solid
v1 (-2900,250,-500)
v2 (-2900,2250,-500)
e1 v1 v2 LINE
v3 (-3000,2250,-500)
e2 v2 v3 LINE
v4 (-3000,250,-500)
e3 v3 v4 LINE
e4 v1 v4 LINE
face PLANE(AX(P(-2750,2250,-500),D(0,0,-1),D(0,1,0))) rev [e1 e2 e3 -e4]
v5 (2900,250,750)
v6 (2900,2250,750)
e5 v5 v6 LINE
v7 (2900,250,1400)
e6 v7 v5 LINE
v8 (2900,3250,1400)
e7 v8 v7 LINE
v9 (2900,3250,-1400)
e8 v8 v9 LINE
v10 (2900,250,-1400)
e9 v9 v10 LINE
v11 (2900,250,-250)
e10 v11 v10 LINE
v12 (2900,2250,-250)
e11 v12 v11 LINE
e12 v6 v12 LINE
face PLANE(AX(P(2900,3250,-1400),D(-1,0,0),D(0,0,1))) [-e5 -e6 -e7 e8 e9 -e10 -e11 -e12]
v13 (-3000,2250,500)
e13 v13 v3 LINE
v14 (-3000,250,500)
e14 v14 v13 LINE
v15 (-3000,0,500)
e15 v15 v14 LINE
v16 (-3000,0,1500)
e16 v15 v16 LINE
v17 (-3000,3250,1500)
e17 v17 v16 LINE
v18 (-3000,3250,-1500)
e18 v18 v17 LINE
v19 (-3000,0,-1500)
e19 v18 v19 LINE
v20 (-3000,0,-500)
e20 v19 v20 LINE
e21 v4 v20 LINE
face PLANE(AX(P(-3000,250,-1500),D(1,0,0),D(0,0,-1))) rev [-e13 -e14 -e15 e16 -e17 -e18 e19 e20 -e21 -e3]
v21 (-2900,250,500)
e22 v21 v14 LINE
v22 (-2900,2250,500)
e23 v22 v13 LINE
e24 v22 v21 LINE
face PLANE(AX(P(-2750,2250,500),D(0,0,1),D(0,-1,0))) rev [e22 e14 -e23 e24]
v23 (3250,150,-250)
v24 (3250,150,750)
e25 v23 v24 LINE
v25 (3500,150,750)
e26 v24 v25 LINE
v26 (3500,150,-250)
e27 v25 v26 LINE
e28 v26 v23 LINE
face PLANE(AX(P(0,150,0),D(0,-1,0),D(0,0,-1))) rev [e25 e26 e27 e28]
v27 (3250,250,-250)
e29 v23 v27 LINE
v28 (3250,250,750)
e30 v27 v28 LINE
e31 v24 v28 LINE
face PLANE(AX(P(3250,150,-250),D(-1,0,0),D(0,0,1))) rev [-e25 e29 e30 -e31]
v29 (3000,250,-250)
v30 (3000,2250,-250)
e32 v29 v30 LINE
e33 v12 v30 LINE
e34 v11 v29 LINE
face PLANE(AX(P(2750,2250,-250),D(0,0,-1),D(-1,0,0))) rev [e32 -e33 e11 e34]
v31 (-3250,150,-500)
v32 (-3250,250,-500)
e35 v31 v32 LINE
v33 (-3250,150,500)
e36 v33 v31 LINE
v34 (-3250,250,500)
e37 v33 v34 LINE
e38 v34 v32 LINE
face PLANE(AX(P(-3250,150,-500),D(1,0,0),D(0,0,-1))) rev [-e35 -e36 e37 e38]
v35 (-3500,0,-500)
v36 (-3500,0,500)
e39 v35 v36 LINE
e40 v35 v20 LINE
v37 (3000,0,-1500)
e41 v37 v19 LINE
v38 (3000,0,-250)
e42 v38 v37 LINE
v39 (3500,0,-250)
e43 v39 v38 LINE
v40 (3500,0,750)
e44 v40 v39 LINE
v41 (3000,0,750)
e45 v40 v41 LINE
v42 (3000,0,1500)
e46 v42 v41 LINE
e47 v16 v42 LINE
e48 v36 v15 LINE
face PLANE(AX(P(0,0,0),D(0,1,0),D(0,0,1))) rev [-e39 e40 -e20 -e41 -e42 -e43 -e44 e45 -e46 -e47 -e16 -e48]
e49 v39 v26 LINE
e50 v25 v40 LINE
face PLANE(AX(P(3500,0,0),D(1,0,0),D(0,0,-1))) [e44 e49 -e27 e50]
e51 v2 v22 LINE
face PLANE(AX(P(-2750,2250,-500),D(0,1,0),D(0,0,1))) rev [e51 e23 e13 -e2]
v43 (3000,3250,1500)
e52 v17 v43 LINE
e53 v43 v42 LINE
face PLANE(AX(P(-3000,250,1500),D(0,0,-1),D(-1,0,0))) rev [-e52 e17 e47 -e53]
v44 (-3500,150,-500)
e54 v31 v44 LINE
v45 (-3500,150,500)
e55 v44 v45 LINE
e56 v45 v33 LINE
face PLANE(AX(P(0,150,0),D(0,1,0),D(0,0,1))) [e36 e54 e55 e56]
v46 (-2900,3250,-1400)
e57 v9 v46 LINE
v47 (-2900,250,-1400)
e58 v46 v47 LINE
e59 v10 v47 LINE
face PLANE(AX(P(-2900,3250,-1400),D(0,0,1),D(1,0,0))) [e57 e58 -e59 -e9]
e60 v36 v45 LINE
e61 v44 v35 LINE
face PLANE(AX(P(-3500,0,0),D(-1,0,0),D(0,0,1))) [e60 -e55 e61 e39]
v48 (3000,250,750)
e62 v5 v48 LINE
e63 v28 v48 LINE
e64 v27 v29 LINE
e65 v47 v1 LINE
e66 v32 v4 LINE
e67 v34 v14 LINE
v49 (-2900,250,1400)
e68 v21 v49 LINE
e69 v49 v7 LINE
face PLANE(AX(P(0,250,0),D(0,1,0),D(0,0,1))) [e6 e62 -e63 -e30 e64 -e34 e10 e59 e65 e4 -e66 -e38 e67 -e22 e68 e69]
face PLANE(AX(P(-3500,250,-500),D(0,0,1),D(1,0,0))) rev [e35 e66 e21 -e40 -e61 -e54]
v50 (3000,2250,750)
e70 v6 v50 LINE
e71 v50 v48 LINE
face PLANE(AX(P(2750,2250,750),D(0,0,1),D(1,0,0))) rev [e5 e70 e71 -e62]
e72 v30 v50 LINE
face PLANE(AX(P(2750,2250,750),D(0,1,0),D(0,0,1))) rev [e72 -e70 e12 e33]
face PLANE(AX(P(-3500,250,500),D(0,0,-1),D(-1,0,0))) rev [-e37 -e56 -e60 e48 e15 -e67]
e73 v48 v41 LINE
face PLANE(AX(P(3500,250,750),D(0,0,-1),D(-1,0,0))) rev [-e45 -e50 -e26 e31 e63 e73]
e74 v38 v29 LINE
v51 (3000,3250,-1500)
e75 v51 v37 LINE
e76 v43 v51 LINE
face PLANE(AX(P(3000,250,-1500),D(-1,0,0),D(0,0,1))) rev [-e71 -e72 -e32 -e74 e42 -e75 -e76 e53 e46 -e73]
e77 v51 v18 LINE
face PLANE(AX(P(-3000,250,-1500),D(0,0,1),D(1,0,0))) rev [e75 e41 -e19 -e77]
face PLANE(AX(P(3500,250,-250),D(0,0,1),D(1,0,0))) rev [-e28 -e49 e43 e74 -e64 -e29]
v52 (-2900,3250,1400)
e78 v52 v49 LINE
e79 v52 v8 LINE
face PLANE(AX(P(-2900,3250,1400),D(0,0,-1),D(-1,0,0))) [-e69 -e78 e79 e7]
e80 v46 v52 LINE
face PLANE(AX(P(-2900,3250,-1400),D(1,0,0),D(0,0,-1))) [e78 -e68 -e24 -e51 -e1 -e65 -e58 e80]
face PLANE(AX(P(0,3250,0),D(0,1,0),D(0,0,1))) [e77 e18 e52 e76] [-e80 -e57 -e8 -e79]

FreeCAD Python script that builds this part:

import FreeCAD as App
import Part
import Sketcher

V = App.Vector

doc = App.newDocument("Part")
params = doc.addObject("Spreadsheet::Sheet", "Params")
for row, (alias, value) in enumerate([
    ("sketch1_width", "6000 mm"),
    ("sketch1_height", "3000 mm"),
    ("pad1_length", "250 mm"),
    ("sketch2_width", "6000 mm"),
    ("sketch2_width2", "5800 mm"),
    ("sketch2_height", "3000 mm"),
    ("sketch2_height2", "2800 mm"),
    ("pad2_length", "3000 mm"),
    ("sketch3_width", "2000 mm"),
    ("sketch3_height", "1000 mm"),
    ("pocket1_length", "250 mm"),
    ("sketch4_width", "2000 mm"),
    ("sketch4_height", "1000 mm"),
    ("pocket2_length", "250 mm"),
    ("sketch5_width", "250 mm"),
    ("sketch5_height", "1000 mm"),
    ("pad3_length", "500 mm"),
    ("sketch6_width", "250 mm"),
    ("sketch6_height", "1000 mm"),
    ("pad4_length", "500 mm"),
    ("sketch7_width", "250 mm"),
    ("sketch7_height", "1000 mm"),
    ("pocket3_length", "100 mm"),
    ("sketch8_width", "250 mm"),
    ("sketch8_height", "1000 mm"),
    ("pocket4_length", "100 mm"),
], start=1):
    params.set(f"A{row}", alias)
    params.set(f"B{row}", "=" + value)
    params.setAlias(f"B{row}", alias)

body = doc.addObject("PartDesign::Body", "Body")

sketch1 = doc.addObject("Sketcher::SketchObject", "Sketch")
body.addObject(sketch1)
sketch1.AttachmentSupport = (doc.XZ_Plane, [""])
sketch1.MapMode = "FlatFace"
sketch1.addGeometry(Part.LineSegment(V(-3000, -1500, 0), V(-3000, 1500, 0)), False)
sketch1.addGeometry(Part.LineSegment(V(-3000, 1500, 0), V(3000, 1500, 0)), False)
sketch1.addGeometry(Part.LineSegment(V(3000, 1500, 0), V(3000, -1500, 0)), False)
sketch1.addGeometry(Part.LineSegment(V(3000, -1500, 0), V(-3000, -1500, 0)), False)
sketch1.addConstraint(Sketcher.Constraint("Coincident", 0, 2, 1, 1))
sketch1.addConstraint(Sketcher.Constraint("Coincident", 1, 2, 2, 1))
sketch1.addConstraint(Sketcher.Constraint("Coincident", 2, 2, 3, 1))
sketch1.addConstraint(Sketcher.Constraint("Coincident", 3, 2, 0, 1))
sketch1.addConstraint(Sketcher.Constraint("Vertical", 0))
sketch1.addConstraint(Sketcher.Constraint("Horizontal", 1))
sketch1.addConstraint(Sketcher.Constraint("Vertical", 2))
sketch1.addConstraint(Sketcher.Constraint("Horizontal", 3))
sketch1.addConstraint(Sketcher.Constraint("Symmetric", 0, 2, 2, 2, -1, 1))
sketch1.addConstraint(Sketcher.Constraint("DistanceX", 1, 1, 1, 2, 6000.0))
sketch1.addConstraint(Sketcher.Constraint("DistanceY", 0, 1, 0, 2, 3000.0))
sketch1.setExpression("Constraints[9]", "Params.sketch1_width")
sketch1.setExpression("Constraints[10]", "Params.sketch1_height")
pad1 = doc.addObject("PartDesign::Pad", "Pad")
body.addObject(pad1)
pad1.Profile = sketch1
pad1.setExpression("Length", "Params.pad1_length")
pad1.Reversed = True

sketch2 = doc.addObject("Sketcher::SketchObject", "Sketch001")
body.addObject(sketch2)
sketch2.AttachmentSupport = (doc.XZ_Plane, [""])
sketch2.MapMode = "FlatFace"
sketch2.AttachmentOffset = App.Placement(V(0, 0, -250), App.Rotation())
sketch2.addGeometry(Part.LineSegment(V(-3000, -1500, 0), V(-3000, 1500, 0)), False)
sketch2.addGeometry(Part.LineSegment(V(-3000, 1500, 0), V(3000, 1500, 0)), False)
sketch2.addGeometry(Part.LineSegment(V(3000, 1500, 0), V(3000, -1500, 0)), False)
sketch2.addGeometry(Part.LineSegment(V(3000, -1500, 0), V(-3000, -1500, 0)), False)
sketch2.addGeometry(Part.LineSegment(V(2900, 1400, 0), V(-2900, 1400, 0)), False)
sketch2.addGeometry(Part.LineSegment(V(-2900, 1400, 0), V(-2900, -1400, 0)), False)
sketch2.addGeometry(Part.LineSegment(V(-2900, -1400, 0), V(2900, -1400, 0)), False)
sketch2.addGeometry(Part.LineSegment(V(2900, -1400, 0), V(2900, 1400, 0)), False)
sketch2.addConstraint(Sketcher.Constraint("Coincident", 0, 2, 1, 1))
sketch2.addConstraint(Sketcher.Constraint("Coincident", 1, 2, 2, 1))
sketch2.addConstraint(Sketcher.Constraint("Coincident", 2, 2, 3, 1))
sketch2.addConstraint(Sketcher.Constraint("Coincident", 3, 2, 0, 1))
sketch2.addConstraint(Sketcher.Constraint("Coincident", 4, 2, 5, 1))
sketch2.addConstraint(Sketcher.Constraint("Coincident", 5, 2, 6, 1))
sketch2.addConstraint(Sketcher.Constraint("Coincident", 6, 2, 7, 1))
sketch2.addConstraint(Sketcher.Constraint("Coincident", 7, 2, 4, 1))
sketch2.addConstraint(Sketcher.Constraint("Vertical", 0))
sketch2.addConstraint(Sketcher.Constraint("Horizontal", 1))
sketch2.addConstraint(Sketcher.Constraint("Vertical", 2))
sketch2.addConstraint(Sketcher.Constraint("Horizontal", 3))
sketch2.addConstraint(Sketcher.Constraint("Horizontal", 4))
sketch2.addConstraint(Sketcher.Constraint("Vertical", 5))
sketch2.addConstraint(Sketcher.Constraint("Horizontal", 6))
sketch2.addConstraint(Sketcher.Constraint("Vertical", 7))
sketch2.addConstraint(Sketcher.Constraint("Symmetric", 0, 2, 2, 2, -1, 1))
sketch2.addConstraint(Sketcher.Constraint("Symmetric", 4, 2, 6, 2, -1, 1))
sketch2.addConstraint(Sketcher.Constraint("DistanceX", 1, 1, 1, 2, 6000.0))
sketch2.addConstraint(Sketcher.Constraint("DistanceX", 4, 2, 4, 1, 5800.0))
sketch2.addConstraint(Sketcher.Constraint("DistanceY", 0, 1, 0, 2, 3000.0))
sketch2.addConstraint(Sketcher.Constraint("DistanceY", 5, 2, 5, 1, 2800.0))
sketch2.setExpression("Constraints[18]", "Params.sketch2_width")
sketch2.setExpression("Constraints[19]", "Params.sketch2_width2")
sketch2.setExpression("Constraints[20]", "Params.sketch2_height")
sketch2.setExpression("Constraints[21]", "Params.sketch2_height2")
pad2 = doc.addObject("PartDesign::Pad", "Pad001")
body.addObject(pad2)
pad2.Profile = sketch2
pad2.setExpression("Length", "Params.pad2_length")
pad2.Reversed = True

sketch3 = doc.addObject("Sketcher::SketchObject", "Sketch002")
body.addObject(sketch3)
sketch3.AttachmentSupport = (doc.YZ_Plane, [""])
sketch3.MapMode = "FlatFace"
sketch3.AttachmentOffset = App.Placement(V(0, 0, -3000), App.Rotation())
sketch3.addGeometry(Part.LineSegment(V(2250, -500, 0), V(250, -500, 0)), False)
sketch3.addGeometry(Part.LineSegment(V(250, -500, 0), V(250, 500, 0)), False)
sketch3.addGeometry(Part.LineSegment(V(250, 500, 0), V(2250, 500, 0)), False)
sketch3.addGeometry(Part.LineSegment(V(2250, 500, 0), V(2250, -500, 0)), False)
sketch3.addConstraint(Sketcher.Constraint("Coincident", 0, 2, 1, 1))
sketch3.addConstraint(Sketcher.Constraint("Coincident", 1, 2, 2, 1))
sketch3.addConstraint(Sketcher.Constraint("Coincident", 2, 2, 3, 1))
sketch3.addConstraint(Sketcher.Constraint("Coincident", 3, 2, 0, 1))
sketch3.addConstraint(Sketcher.Constraint("Horizontal", 0))
sketch3.addConstraint(Sketcher.Constraint("Vertical", 1))
sketch3.addConstraint(Sketcher.Constraint("Horizontal", 2))
sketch3.addConstraint(Sketcher.Constraint("Vertical", 3))
sketch3.addConstraint(Sketcher.Constraint("DistanceX", 0, 2, 0, 1, 2000.0))
sketch3.addConstraint(Sketcher.Constraint("DistanceY", 1, 1, 1, 2, 1000.0))
sketch3.addConstraint(Sketcher.Constraint("DistanceX", -1, 1, 0, 2, 250.0))
sketch3.addConstraint(Sketcher.Constraint("DistanceY", 0, 2, -1, 1, 500.0))
sketch3.setExpression("Constraints[8]", "Params.sketch3_width")
sketch3.setExpression("Constraints[9]", "Params.sketch3_height")
pocket1 = doc.addObject("PartDesign::Pocket", "Pocket")
body.addObject(pocket1)
pocket1.Profile = sketch3
pocket1.setExpression("Length", "Params.pocket1_length")
pocket1.Reversed = True

sketch4 = doc.addObject("Sketcher::SketchObject", "Sketch003")
body.addObject(sketch4)
sketch4.AttachmentSupport = (doc.YZ_Plane, [""])
sketch4.MapMode = "FlatFace"
sketch4.AttachmentOffset = App.Placement(V(0, 0, 3000), App.Rotation())
sketch4.addGeometry(Part.LineSegment(V(2250, 750, 0), V(250, 750, 0)), False)
sketch4.addGeometry(Part.LineSegment(V(250, 750, 0), V(250, -250, 0)), False)
sketch4.addGeometry(Part.LineSegment(V(250, -250, 0), V(2250, -250, 0)), False)
sketch4.addGeometry(Part.LineSegment(V(2250, -250, 0), V(2250, 750, 0)), False)
sketch4.addConstraint(Sketcher.Constraint("Coincident", 0, 2, 1, 1))
sketch4.addConstraint(Sketcher.Constraint("Coincident", 1, 2, 2, 1))
sketch4.addConstraint(Sketcher.Constraint("Coincident", 2, 2, 3, 1))
sketch4.addConstraint(Sketcher.Constraint("Coincident", 3, 2, 0, 1))
sketch4.addConstraint(Sketcher.Constraint("Horizontal", 0))
sketch4.addConstraint(Sketcher.Constraint("Vertical", 1))
sketch4.addConstraint(Sketcher.Constraint("Horizontal", 2))
sketch4.addConstraint(Sketcher.Constraint("Vertical", 3))
sketch4.addConstraint(Sketcher.Constraint("DistanceX", 0, 2, 0, 1, 2000.0))
sketch4.addConstraint(Sketcher.Constraint("DistanceY", 1, 2, 1, 1, 1000.0))
sketch4.addConstraint(Sketcher.Constraint("DistanceX", -1, 1, 0, 2, 250.0))
sketch4.addConstraint(Sketcher.Constraint("DistanceY", -1, 1, 0, 2, 750.0))
sketch4.setExpression("Constraints[8]", "Params.sketch4_width")
sketch4.setExpression("Constraints[9]", "Params.sketch4_height")
pocket2 = doc.addObject("PartDesign::Pocket", "Pocket001")
body.addObject(pocket2)
pocket2.Profile = sketch4
pocket2.setExpression("Length", "Params.pocket2_length")

sketch5 = doc.addObject("Sketcher::SketchObject", "Sketch004")
body.addObject(sketch5)
sketch5.AttachmentSupport = (doc.YZ_Plane, [""])
sketch5.MapMode = "FlatFace"
sketch5.AttachmentOffset = App.Placement(V(0, 0, 3000), App.Rotation())
sketch5.addGeometry(Part.LineSegment(V(250, 750, 0), V(0, 750, 0)), False)
sketch5.addGeometry(Part.LineSegment(V(0, 750, 0), V(0, -250, 0)), False)
sketch5.addGeometry(Part.LineSegment(V(0, -250, 0), V(250, -250, 0)), False)
sketch5.addGeometry(Part.LineSegment(V(250, -250, 0), V(250, 750, 0)), False)
sketch5.addConstraint(Sketcher.Constraint("Coincident", 0, 2, 1, 1))
sketch5.addConstraint(Sketcher.Constraint("Coincident", 1, 2, 2, 1))
sketch5.addConstraint(Sketcher.Constraint("Coincident", 2, 2, 3, 1))
sketch5.addConstraint(Sketcher.Constraint("Coincident", 3, 2, 0, 1))
sketch5.addConstraint(Sketcher.Constraint("Horizontal", 0))
sketch5.addConstraint(Sketcher.Constraint("Vertical", 1))
sketch5.addConstraint(Sketcher.Constraint("Horizontal", 2))
sketch5.addConstraint(Sketcher.Constraint("Vertical", 3))
sketch5.addConstraint(Sketcher.Constraint("PointOnObject", 0, 2, -2))
sketch5.addConstraint(Sketcher.Constraint("DistanceX", 0, 2, 0, 1, 250.0))
sketch5.addConstraint(Sketcher.Constraint("DistanceY", 1, 2, 1, 1, 1000.0))
sketch5.addConstraint(Sketcher.Constraint("DistanceY", -1, 1, 0, 2, 750.0))
sketch5.setExpression("Constraints[9]", "Params.sketch5_width")
sketch5.setExpression("Constraints[10]", "Params.sketch5_height")
pad3 = doc.addObject("PartDesign::Pad", "Pad002")
body.addObject(pad3)
pad3.Profile = sketch5
pad3.setExpression("Length", "Params.pad3_length")

sketch6 = doc.addObject("Sketcher::SketchObject", "Sketch005")
body.addObject(sketch6)
sketch6.AttachmentSupport = (doc.YZ_Plane, [""])
sketch6.MapMode = "FlatFace"
sketch6.AttachmentOffset = App.Placement(V(0, 0, -3000), App.Rotation())
sketch6.addGeometry(Part.LineSegment(V(250, -500, 0), V(0, -500, 0)), False)
sketch6.addGeometry(Part.LineSegment(V(0, -500, 0), V(0, 500, 0)), False)
sketch6.addGeometry(Part.LineSegment(V(0, 500, 0), V(250, 500, 0)), False)
sketch6.addGeometry(Part.LineSegment(V(250, 500, 0), V(250, -500, 0)), False)
sketch6.addConstraint(Sketcher.Constraint("Coincident", 0, 2, 1, 1))
sketch6.addConstraint(Sketcher.Constraint("Coincident", 1, 2, 2, 1))
sketch6.addConstraint(Sketcher.Constraint("Coincident", 2, 2, 3, 1))
sketch6.addConstraint(Sketcher.Constraint("Coincident", 3, 2, 0, 1))
sketch6.addConstraint(Sketcher.Constraint("Horizontal", 0))
sketch6.addConstraint(Sketcher.Constraint("Vertical", 1))
sketch6.addConstraint(Sketcher.Constraint("Horizontal", 2))
sketch6.addConstraint(Sketcher.Constraint("Vertical", 3))
sketch6.addConstraint(Sketcher.Constraint("Symmetric", 0, 2, 1, 2, -1, 1))
sketch6.addConstraint(Sketcher.Constraint("DistanceX", 0, 2, 0, 1, 250.0))
sketch6.addConstraint(Sketcher.Constraint("DistanceY", 1, 1, 1, 2, 1000.0))
sketch6.setExpression("Constraints[9]", "Params.sketch6_width")
sketch6.setExpression("Constraints[10]", "Params.sketch6_height")
pad4 = doc.addObject("PartDesign::Pad", "Pad003")
body.addObject(pad4)
pad4.Profile = sketch6
pad4.setExpression("Length", "Params.pad4_length")
pad4.Reversed = True

sketch7 = doc.addObject("Sketcher::SketchObject", "Sketch006")
body.addObject(sketch7)
sketch7.AttachmentSupport = (doc.XZ_Plane, [""])
sketch7.MapMode = "FlatFace"
sketch7.AttachmentOffset = App.Placement(V(0, 0, -250), App.Rotation())
sketch7.addGeometry(Part.LineSegment(V(3250, -250, 0), V(3250, 750, 0)), False)
sketch7.addGeometry(Part.LineSegment(V(3250, 750, 0), V(3500, 750, 0)), False)
sketch7.addGeometry(Part.LineSegment(V(3500, 750, 0), V(3500, -250, 0)), False)
sketch7.addGeometry(Part.LineSegment(V(3500, -250, 0), V(3250, -250, 0)), False)
sketch7.addConstraint(Sketcher.Constraint("Coincident", 0, 2, 1, 1))
sketch7.addConstraint(Sketcher.Constraint("Coincident", 1, 2, 2, 1))
sketch7.addConstraint(Sketcher.Constraint("Coincident", 2, 2, 3, 1))
sketch7.addConstraint(Sketcher.Constraint("Coincident", 3, 2, 0, 1))
sketch7.addConstraint(Sketcher.Constraint("Vertical", 0))
sketch7.addConstraint(Sketcher.Constraint("Horizontal", 1))
sketch7.addConstraint(Sketcher.Constraint("Vertical", 2))
sketch7.addConstraint(Sketcher.Constraint("Horizontal", 3))
sketch7.addConstraint(Sketcher.Constraint("DistanceX", 1, 1, 1, 2, 250.0))
sketch7.addConstraint(Sketcher.Constraint("DistanceY", 0, 1, 0, 2, 1000.0))
sketch7.addConstraint(Sketcher.Constraint("DistanceX", -1, 1, 0, 2, 3250.0))
sketch7.addConstraint(Sketcher.Constraint("DistanceY", -1, 1, 0, 2, 750.0))
sketch7.setExpression("Constraints[8]", "Params.sketch7_width")
sketch7.setExpression("Constraints[9]", "Params.sketch7_height")
pocket3 = doc.addObject("PartDesign::Pocket", "Pocket002")
body.addObject(pocket3)
pocket3.Profile = sketch7
pocket3.setExpression("Length", "Params.pocket3_length")
pocket3.Reversed = True

sketch8 = doc.addObject("Sketcher::SketchObject", "Sketch007")
body.addObject(sketch8)
sketch8.AttachmentSupport = (doc.XZ_Plane, [""])
sketch8.MapMode = "FlatFace"
sketch8.AttachmentOffset = App.Placement(V(0, 0, -250), App.Rotation())
sketch8.addGeometry(Part.LineSegment(V(-3500, -500, 0), V(-3500, 500, 0)), False)
sketch8.addGeometry(Part.LineSegment(V(-3500, 500, 0), V(-3250, 500, 0)), False)
sketch8.addGeometry(Part.LineSegment(V(-3250, 500, 0), V(-3250, -500, 0)), False)
sketch8.addGeometry(Part.LineSegment(V(-3250, -500, 0), V(-3500, -500, 0)), False)
sketch8.addConstraint(Sketcher.Constraint("Coincident", 0, 2, 1, 1))
sketch8.addConstraint(Sketcher.Constraint("Coincident", 1, 2, 2, 1))
sketch8.addConstraint(Sketcher.Constraint("Coincident", 2, 2, 3, 1))
sketch8.addConstraint(Sketcher.Constraint("Coincident", 3, 2, 0, 1))
sketch8.addConstraint(Sketcher.Constraint("Vertical", 0))
sketch8.addConstraint(Sketcher.Constraint("Horizontal", 1))
sketch8.addConstraint(Sketcher.Constraint("Vertical", 2))
sketch8.addConstraint(Sketcher.Constraint("Horizontal", 3))
sketch8.addConstraint(Sketcher.Constraint("DistanceX", 1, 1, 1, 2, 250.0))
sketch8.addConstraint(Sketcher.Constraint("DistanceY", 0, 1, 0, 2, 1000.0))
sketch8.addConstraint(Sketcher.Constraint("DistanceX", 0, 2, -1, 1, 3500.0))
sketch8.addConstraint(Sketcher.Constraint("DistanceY", -1, 1, 0, 2, 500.0))
sketch8.setExpression("Constraints[8]", "Params.sketch8_width")
sketch8.setExpression("Constraints[9]", "Params.sketch8_height")
pocket4 = doc.addObject("PartDesign::Pocket", "Pocket003")
body.addObject(pocket4)
pocket4.Profile = sketch8
pocket4.setExpression("Length", "Params.pocket4_length")
pocket4.Reversed = True

doc.recompute()
